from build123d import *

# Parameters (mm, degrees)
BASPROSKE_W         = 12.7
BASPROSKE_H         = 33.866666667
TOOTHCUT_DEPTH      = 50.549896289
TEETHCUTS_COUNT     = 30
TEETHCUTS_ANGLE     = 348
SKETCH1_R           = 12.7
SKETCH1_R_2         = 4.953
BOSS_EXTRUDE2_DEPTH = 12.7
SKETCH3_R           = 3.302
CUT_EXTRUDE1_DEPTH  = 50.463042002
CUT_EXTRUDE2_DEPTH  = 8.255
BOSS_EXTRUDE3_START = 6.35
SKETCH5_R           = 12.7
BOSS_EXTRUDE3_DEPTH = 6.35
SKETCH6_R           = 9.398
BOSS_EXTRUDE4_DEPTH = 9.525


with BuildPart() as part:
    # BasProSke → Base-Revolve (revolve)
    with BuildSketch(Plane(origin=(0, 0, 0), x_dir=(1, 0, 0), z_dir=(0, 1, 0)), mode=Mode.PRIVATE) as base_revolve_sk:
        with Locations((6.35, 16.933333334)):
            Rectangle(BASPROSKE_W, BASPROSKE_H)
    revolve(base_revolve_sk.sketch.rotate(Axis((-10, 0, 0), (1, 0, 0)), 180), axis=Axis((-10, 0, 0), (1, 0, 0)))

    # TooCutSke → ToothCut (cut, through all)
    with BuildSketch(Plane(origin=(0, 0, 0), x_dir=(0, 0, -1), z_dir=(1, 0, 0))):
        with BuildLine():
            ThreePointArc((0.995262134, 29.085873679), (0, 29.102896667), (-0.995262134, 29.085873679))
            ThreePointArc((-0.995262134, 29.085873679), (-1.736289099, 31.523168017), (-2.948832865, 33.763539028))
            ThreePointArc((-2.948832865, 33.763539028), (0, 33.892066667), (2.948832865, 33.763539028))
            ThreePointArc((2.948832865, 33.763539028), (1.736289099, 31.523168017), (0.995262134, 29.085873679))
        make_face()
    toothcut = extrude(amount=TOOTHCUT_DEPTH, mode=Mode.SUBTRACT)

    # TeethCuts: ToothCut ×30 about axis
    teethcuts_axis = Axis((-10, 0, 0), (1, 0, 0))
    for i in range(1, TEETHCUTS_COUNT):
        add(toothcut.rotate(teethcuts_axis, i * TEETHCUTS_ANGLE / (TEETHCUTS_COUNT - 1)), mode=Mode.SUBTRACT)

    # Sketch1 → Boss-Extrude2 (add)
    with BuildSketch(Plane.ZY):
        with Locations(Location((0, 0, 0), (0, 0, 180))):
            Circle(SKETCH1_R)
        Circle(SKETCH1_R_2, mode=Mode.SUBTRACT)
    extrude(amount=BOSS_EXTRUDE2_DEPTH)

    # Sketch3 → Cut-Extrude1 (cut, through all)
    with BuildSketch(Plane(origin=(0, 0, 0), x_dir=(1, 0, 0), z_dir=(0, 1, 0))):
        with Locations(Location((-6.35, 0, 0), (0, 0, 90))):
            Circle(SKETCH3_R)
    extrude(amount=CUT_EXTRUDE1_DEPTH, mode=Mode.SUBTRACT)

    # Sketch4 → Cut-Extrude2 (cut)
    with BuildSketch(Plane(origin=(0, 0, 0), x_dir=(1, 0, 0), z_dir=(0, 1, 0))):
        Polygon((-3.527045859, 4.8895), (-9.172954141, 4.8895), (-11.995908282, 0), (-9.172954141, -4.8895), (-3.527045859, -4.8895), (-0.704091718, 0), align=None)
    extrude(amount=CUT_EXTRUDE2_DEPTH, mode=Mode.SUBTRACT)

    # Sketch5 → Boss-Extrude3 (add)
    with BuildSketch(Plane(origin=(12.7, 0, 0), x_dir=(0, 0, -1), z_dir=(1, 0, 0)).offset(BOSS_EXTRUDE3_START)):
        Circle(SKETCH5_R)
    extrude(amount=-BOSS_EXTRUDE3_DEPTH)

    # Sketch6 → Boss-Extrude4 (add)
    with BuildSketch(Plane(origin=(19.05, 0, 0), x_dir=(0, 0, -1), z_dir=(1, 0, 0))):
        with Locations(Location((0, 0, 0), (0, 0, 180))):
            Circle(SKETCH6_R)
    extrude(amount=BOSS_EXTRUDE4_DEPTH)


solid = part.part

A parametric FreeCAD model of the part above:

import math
import FreeCAD as App
import Part
import Sketcher
Q = App.Units.Quantity

doc = App.newDocument("Part")
body = doc.addObject("PartDesign::Body", "Body")

sketch1 = body.newObject("Sketcher::SketchObject", "Sketch")
sketch1.AttachmentSupport = (doc.getObject("XZ_Plane"), [""])
sketch1.MapMode = "FlatFace"
sketch1.addGeometry(Part.LineSegment(App.Vector(0, -34, 0), App.Vector(0, 0, 0)), False)
sketch1.addGeometry(Part.LineSegment(App.Vector(0, 0, 0), App.Vector(13, 0, 0)), False)
sketch1.addGeometry(Part.LineSegment(App.Vector(13, 0, 0), App.Vector(13, -34, 0)), False)
sketch1.addGeometry(Part.LineSegment(App.Vector(13, -34, 0), App.Vector(0, -34, 0)), False)
sketch1.addConstraint(Sketcher.Constraint("Coincident", 0, 2, 1, 1))
sketch1.addConstraint(Sketcher.Constraint("Coincident", 1, 2, 2, 1))
sketch1.addConstraint(Sketcher.Constraint("Coincident", 2, 2, 3, 1))
sketch1.addConstraint(Sketcher.Constraint("Coincident", 3, 2, 0, 1))
sketch1.addConstraint(Sketcher.Constraint("Vertical", 0))
sketch1.addConstraint(Sketcher.Constraint("Horizontal", 1))
sketch1.addConstraint(Sketcher.Constraint("Vertical", 2))
sketch1.addConstraint(Sketcher.Constraint("Horizontal", 3))
sketch1.addConstraint(Sketcher.Constraint("Coincident", 0, 2, -1, 1))
sketch1.addConstraint(Sketcher.Constraint("DistanceX", 1, 1, 1, 2, Q("0.5 in")))
sketch1.addConstraint(Sketcher.Constraint("DistanceY", 0, 1, 0, 2, Q("33.866667 mm")))
revolution = body.newObject("PartDesign::Revolution", "Revolution")
revolution.Profile = sketch1
revolution.ReferenceAxis = (sketch1, ["H_Axis"])
revolution.Angle = 360

sketch2 = body.newObject("Sketcher::SketchObject", "Sketch001")
sketch2.AttachmentSupport = (doc.getObject("YZ_Plane"), [""])
sketch2.MapMode = "FlatFace"
sketch2.addGeometry(Part.ArcOfCircle(Part.Circle(App.Vector(0, 0, 0), App.Vector(0, 0, 1), 29.1), math.radians(-1.96), math.radians(1.96)), False)
sketch2.addGeometry(Part.ArcOfCircle(Part.Circle(App.Vector(26.6, -13.5, 0), App.Vector(0, 0, 1), 12.7), math.radians(56), math.radians(79)), False)
sketch2.addGeometry(Part.ArcOfCircle(Part.Circle(App.Vector(0, 0, 0), App.Vector(0, 0, 1), 33.9), math.radians(-4.99), math.radians(4.99)), False)
sketch2.addGeometry(Part.ArcOfCircle(Part.Circle(App.Vector(26.6, 13.5, 0), App.Vector(0, 0, 1), 12.7), math.radians(-79), math.radians(-56)), False)
sketch2.addConstraint(Sketcher.Constraint("Coincident", 0, 1, 1, 2))
sketch2.addConstraint(Sketcher.Constraint("Coincident", 1, 1, 2, 1))
sketch2.addConstraint(Sketcher.Constraint("Coincident", 2, 2, 3, 2))
sketch2.addConstraint(Sketcher.Constraint("Coincident", 3, 1, 0, 2))
sketch2.addConstraint(Sketcher.Constraint("Coincident", 0, 3, -1, 1))
sketch2.addConstraint(Sketcher.Constraint("Coincident", 2, 3, -1, 1))
sketch2.addConstraint(Sketcher.Constraint("Equal", 1, 3))
sketch2.addConstraint(Sketcher.Constraint("Symmetric", 1, 3, 3, 3, -1))
sketch2.addConstraint(Sketcher.Constraint("Radius", 1, Q("0.5 in")))
sketch2.addConstraint(Sketcher.Constraint("Radius", 0, Q("29.102896 mm")))
sketch2.addConstraint(Sketcher.Constraint("Radius", 2, Q("33.892067 mm")))
sketch2.addConstraint(Sketcher.Constraint("DistanceY", 1, 3, -1, 1, Q("13.455321 mm")))
sketch2.addConstraint(Sketcher.Constraint("DistanceX", -1, 1, 1, 1, Q("33.763539 mm")))
pocket1 = body.newObject("PartDesign::Pocket", "Pocket")
pocket1.Profile = sketch2
pocket1.Type = "ThroughAll"
pocket1.Reversed = True
doc.recompute()

polarpattern = body.newObject("PartDesign::PolarPattern", "PolarPattern")
polarpattern.Originals = [pocket1]
polarpattern.Axis = (doc.getObject("X_Axis"), [""])
polarpattern.Angle = 360
polarpattern.Occurrences = 30
body.Tip = polarpattern

sketch3 = body.newObject("Sketcher::SketchObject", "Sketch002")
sketch3.AttachmentSupport = (doc.getObject("YZ_Plane"), [""])
sketch3.MapMode = "FlatFace"
sketch3.addGeometry(Part.Circle(App.Vector(0, 0, 0), App.Vector(0, 0, 1), 12.7), False)
sketch3.addGeometry(Part.Circle(App.Vector(0, 0, 0), App.Vector(0, 0, 1), 5), False)
sketch3.addConstraint(Sketcher.Constraint("Coincident", 0, 3, -1, 1))
sketch3.addConstraint(Sketcher.Constraint("Coincident", 1, 3, -1, 1))
sketch3.addConstraint(Sketcher.Constraint("Diameter", 0, Q("1 in")))
sketch3.addConstraint(Sketcher.Constraint("Diameter", 1, Q("0.39 in")))
pad1 = body.newObject("PartDesign::Pad", "Pad")
pad1.Profile = sketch3
pad1.Length = Q("0.5 in")
pad1.Reversed = True

sketch4 = body.newObject("Sketcher::SketchObject", "Sketch003")
sketch4.AttachmentSupport = (doc.getObject("XZ_Plane"), [""])
sketch4.MapMode = "FlatFace"
sketch4.addGeometry(Part.Circle(App.Vector(-6.3, 0, 0), App.Vector(0, 0, 1), 3.3), False)
sketch4.addConstraint(Sketcher.Constraint("PointOnObject", 0, 3, -1))
sketch4.addConstraint(Sketcher.Constraint("Diameter", 0, Q("0.26 in")))
sketch4.addConstraint(Sketcher.Constraint("DistanceX", 0, 3, -1, 1, Q("0.25 in")))
pocket2 = body.newObject("PartDesign::Pocket", "Pocket001")
pocket2.Profile = sketch4
pocket2.Type = "ThroughAll"

sketch5 = body.newObject("Sketcher::SketchObject", "Sketch004")
sketch5.AttachmentSupport = (doc.getObject("XZ_Plane"), [""])
sketch5.MapMode = "FlatFace"
sketch5.addGeometry(Part.LineSegment(App.Vector(-4, -5, 0), App.Vector(-9, -5, 0)), False)
sketch5.addGeometry(Part.LineSegment(App.Vector(-9, -5, 0), App.Vector(-12, 0, 0)), False)
sketch5.addGeometry(Part.LineSegment(App.Vector(-12, 0, 0), App.Vector(-9, 5, 0)), False)
sketch5.addGeometry(Part.LineSegment(App.Vector(-9, 5, 0), App.Vector(-4, 5, 0)), False)
sketch5.addGeometry(Part.LineSegment(App.Vector(-4, 5, 0), App.Vector(-1, 0, 0)), False)
sketch5.addGeometry(Part.LineSegment(App.Vector(-1, 0, 0), App.Vector(-4, -5, 0)), False)
sketch5.addConstraint(Sketcher.Constraint("Coincident", 0, 2, 1, 1))
sketch5.addConstraint(Sketcher.Constraint("Coincident", 1, 2, 2, 1))
sketch5.addConstraint(Sketcher.Constraint("Coincident", 2, 2, 3, 1))
sketch5.addConstraint(Sketcher.Constraint("Coincident", 3, 2, 4, 1))
sketch5.addConstraint(Sketcher.Constraint("Coincident", 4, 2, 5, 1))
sketch5.addConstraint(Sketcher.Constraint("Coincident", 5, 2, 0, 1))
sketch5.addConstraint(Sketcher.Constraint("Horizontal", 0))
sketch5.addConstraint(Sketcher.Constraint("Horizontal", 3))
sketch5.addConstraint(Sketcher.Constraint("Symmetric", 0, 2, 2, 2, -1))
sketch5.addConstraint(Sketcher.Constraint("PointOnObject", 1, 2, -1))
sketch5.addConstraint(Sketcher.Constraint("PointOnObject", 4, 2, -1))
sketch5.addConstraint(Sketcher.Constraint("Parallel", 1, 4))
sketch5.addConstraint(Sketcher.Constraint("Parallel", 2, 5))
sketch5.addConstraint(Sketcher.Constraint("Angle", 1, Q("120 deg")))
sketch5.addConstraint(Sketcher.Constraint("DistanceY", 0, 2, 2, 2, Q("0.385 in")))
sketch5.addConstraint(Sketcher.Constraint("DistanceX", 0, 2, 0, 1, Q("5.645908 mm")))
sketch5.addConstraint(Sketcher.Constraint("DistanceX", 1, 2, -1, 1, Q("11.995908 mm")))
pocket3 = body.newObject("PartDesign::Pocket", "Pocket002")
pocket3.Profile = sketch5
pocket3.Length = Q("0.325 in")

sketch6 = body.newObject("Sketcher::SketchObject", "Sketch005")
sketch6.AttachmentSupport = (doc.getObject("YZ_Plane"), [""])
sketch6.MapMode = "FlatFace"
sketch6.AttachmentOffset = App.Placement(App.Vector(0, 0, 0.75 * 25.4), App.Rotation())
sketch6.addGeometry(Part.Circle(App.Vector(0, 0, 0), App.Vector(0, 0, 1), 13), False)
sketch6.addConstraint(Sketcher.Constraint("Coincident", 0, 3, -1, 1))
sketch6.addConstraint(Sketcher.Constraint("Diameter", 0, Q("1 in")))
pad2 = body.newObject("PartDesign::Pad", "Pad001")
pad2.Profile = sketch6
pad2.Length = Q("0.25 in")
pad2.Reversed = True

sketch7 = body.newObject("Sketcher::SketchObject", "Sketch006")
sketch7.AttachmentSupport = (doc.getObject("YZ_Plane"), [""])
sketch7.MapMode = "FlatFace"
sketch7.AttachmentOffset = App.Placement(App.Vector(0, 0, 0.75 * 25.4), App.Rotation())
sketch7.addGeometry(Part.Circle(App.Vector(0, 0, 0), App.Vector(0, 0, 1), 9), False)
sketch7.addConstraint(Sketcher.Constraint("Coincident", 0, 3, -1, 1))
sketch7.addConstraint(Sketcher.Constraint("Diameter", 0, Q("0.74 in")))
pad3 = body.newObject("PartDesign::Pad", "Pad002")
pad3.Profile = sketch7
pad3.Length = Q("0.375 in")

doc.recompute()
